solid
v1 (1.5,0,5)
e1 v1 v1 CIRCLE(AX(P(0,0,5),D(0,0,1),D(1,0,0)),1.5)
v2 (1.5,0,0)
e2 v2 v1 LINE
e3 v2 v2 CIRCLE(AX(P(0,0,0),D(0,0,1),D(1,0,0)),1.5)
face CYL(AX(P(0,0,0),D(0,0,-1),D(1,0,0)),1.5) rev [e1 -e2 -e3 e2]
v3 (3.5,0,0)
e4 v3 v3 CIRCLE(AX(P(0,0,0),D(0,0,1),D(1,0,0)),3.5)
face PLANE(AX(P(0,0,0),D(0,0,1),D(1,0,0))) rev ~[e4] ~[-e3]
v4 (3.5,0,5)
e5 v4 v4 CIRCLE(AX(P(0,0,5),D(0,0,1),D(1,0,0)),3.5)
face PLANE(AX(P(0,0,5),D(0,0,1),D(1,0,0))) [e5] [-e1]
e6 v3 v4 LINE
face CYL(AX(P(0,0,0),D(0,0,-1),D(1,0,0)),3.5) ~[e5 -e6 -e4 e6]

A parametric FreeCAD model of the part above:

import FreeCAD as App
import Part
import Sketcher
Q = App.Units.Quantity

doc = App.newDocument("Part")
params = doc.addObject("Spreadsheet::Sheet", "Params")
for row, (alias, value) in enumerate([
    ("sketch1_diameter", "7 mm"),
    ("sketch1_diameter2", "3 mm"),
    ("pad1_length", "5 mm"),
], start=1):
    params.set(f"A{row}", alias)
    params.set(f"B{row}", "=" + value)
    params.setAlias(f"B{row}", alias)

body = doc.addObject("PartDesign::Body", "Body")

# Sketch on XY plane
sketch1 = body.newObject("Sketcher::SketchObject", "Sketch")
sketch1.AttachmentSupport = (doc.getObject("XY_Plane"), [""])
sketch1.MapMode = "FlatFace"
sketch1.addGeometry(Part.Circle(App.Vector(0, 0, 0), App.Vector(0, 0, 1), 3.5), False)
sketch1.addGeometry(Part.Circle(App.Vector(0, 0, 0), App.Vector(0, 0, 1), 1.5), False)
sketch1.addConstraint(Sketcher.Constraint("Coincident", 0, 3, -1, 1))
sketch1.addConstraint(Sketcher.Constraint("Coincident", 1, 3, -1, 1))
sketch1.addConstraint(Sketcher.Constraint("Diameter", 0, Q("7 mm")))
sketch1.addConstraint(Sketcher.Constraint("Diameter", 1, Q("3 mm")))
sketch1.setExpression("Constraints[2]", "Params.sketch1_diameter")
sketch1.setExpression("Constraints[3]", "Params.sketch1_diameter2")
pad1 = body.newObject("PartDesign::Pad", "Pad")
pad1.Profile = sketch1
pad1.setExpression("Length", "Params.pad1_length")

doc.recompute()
